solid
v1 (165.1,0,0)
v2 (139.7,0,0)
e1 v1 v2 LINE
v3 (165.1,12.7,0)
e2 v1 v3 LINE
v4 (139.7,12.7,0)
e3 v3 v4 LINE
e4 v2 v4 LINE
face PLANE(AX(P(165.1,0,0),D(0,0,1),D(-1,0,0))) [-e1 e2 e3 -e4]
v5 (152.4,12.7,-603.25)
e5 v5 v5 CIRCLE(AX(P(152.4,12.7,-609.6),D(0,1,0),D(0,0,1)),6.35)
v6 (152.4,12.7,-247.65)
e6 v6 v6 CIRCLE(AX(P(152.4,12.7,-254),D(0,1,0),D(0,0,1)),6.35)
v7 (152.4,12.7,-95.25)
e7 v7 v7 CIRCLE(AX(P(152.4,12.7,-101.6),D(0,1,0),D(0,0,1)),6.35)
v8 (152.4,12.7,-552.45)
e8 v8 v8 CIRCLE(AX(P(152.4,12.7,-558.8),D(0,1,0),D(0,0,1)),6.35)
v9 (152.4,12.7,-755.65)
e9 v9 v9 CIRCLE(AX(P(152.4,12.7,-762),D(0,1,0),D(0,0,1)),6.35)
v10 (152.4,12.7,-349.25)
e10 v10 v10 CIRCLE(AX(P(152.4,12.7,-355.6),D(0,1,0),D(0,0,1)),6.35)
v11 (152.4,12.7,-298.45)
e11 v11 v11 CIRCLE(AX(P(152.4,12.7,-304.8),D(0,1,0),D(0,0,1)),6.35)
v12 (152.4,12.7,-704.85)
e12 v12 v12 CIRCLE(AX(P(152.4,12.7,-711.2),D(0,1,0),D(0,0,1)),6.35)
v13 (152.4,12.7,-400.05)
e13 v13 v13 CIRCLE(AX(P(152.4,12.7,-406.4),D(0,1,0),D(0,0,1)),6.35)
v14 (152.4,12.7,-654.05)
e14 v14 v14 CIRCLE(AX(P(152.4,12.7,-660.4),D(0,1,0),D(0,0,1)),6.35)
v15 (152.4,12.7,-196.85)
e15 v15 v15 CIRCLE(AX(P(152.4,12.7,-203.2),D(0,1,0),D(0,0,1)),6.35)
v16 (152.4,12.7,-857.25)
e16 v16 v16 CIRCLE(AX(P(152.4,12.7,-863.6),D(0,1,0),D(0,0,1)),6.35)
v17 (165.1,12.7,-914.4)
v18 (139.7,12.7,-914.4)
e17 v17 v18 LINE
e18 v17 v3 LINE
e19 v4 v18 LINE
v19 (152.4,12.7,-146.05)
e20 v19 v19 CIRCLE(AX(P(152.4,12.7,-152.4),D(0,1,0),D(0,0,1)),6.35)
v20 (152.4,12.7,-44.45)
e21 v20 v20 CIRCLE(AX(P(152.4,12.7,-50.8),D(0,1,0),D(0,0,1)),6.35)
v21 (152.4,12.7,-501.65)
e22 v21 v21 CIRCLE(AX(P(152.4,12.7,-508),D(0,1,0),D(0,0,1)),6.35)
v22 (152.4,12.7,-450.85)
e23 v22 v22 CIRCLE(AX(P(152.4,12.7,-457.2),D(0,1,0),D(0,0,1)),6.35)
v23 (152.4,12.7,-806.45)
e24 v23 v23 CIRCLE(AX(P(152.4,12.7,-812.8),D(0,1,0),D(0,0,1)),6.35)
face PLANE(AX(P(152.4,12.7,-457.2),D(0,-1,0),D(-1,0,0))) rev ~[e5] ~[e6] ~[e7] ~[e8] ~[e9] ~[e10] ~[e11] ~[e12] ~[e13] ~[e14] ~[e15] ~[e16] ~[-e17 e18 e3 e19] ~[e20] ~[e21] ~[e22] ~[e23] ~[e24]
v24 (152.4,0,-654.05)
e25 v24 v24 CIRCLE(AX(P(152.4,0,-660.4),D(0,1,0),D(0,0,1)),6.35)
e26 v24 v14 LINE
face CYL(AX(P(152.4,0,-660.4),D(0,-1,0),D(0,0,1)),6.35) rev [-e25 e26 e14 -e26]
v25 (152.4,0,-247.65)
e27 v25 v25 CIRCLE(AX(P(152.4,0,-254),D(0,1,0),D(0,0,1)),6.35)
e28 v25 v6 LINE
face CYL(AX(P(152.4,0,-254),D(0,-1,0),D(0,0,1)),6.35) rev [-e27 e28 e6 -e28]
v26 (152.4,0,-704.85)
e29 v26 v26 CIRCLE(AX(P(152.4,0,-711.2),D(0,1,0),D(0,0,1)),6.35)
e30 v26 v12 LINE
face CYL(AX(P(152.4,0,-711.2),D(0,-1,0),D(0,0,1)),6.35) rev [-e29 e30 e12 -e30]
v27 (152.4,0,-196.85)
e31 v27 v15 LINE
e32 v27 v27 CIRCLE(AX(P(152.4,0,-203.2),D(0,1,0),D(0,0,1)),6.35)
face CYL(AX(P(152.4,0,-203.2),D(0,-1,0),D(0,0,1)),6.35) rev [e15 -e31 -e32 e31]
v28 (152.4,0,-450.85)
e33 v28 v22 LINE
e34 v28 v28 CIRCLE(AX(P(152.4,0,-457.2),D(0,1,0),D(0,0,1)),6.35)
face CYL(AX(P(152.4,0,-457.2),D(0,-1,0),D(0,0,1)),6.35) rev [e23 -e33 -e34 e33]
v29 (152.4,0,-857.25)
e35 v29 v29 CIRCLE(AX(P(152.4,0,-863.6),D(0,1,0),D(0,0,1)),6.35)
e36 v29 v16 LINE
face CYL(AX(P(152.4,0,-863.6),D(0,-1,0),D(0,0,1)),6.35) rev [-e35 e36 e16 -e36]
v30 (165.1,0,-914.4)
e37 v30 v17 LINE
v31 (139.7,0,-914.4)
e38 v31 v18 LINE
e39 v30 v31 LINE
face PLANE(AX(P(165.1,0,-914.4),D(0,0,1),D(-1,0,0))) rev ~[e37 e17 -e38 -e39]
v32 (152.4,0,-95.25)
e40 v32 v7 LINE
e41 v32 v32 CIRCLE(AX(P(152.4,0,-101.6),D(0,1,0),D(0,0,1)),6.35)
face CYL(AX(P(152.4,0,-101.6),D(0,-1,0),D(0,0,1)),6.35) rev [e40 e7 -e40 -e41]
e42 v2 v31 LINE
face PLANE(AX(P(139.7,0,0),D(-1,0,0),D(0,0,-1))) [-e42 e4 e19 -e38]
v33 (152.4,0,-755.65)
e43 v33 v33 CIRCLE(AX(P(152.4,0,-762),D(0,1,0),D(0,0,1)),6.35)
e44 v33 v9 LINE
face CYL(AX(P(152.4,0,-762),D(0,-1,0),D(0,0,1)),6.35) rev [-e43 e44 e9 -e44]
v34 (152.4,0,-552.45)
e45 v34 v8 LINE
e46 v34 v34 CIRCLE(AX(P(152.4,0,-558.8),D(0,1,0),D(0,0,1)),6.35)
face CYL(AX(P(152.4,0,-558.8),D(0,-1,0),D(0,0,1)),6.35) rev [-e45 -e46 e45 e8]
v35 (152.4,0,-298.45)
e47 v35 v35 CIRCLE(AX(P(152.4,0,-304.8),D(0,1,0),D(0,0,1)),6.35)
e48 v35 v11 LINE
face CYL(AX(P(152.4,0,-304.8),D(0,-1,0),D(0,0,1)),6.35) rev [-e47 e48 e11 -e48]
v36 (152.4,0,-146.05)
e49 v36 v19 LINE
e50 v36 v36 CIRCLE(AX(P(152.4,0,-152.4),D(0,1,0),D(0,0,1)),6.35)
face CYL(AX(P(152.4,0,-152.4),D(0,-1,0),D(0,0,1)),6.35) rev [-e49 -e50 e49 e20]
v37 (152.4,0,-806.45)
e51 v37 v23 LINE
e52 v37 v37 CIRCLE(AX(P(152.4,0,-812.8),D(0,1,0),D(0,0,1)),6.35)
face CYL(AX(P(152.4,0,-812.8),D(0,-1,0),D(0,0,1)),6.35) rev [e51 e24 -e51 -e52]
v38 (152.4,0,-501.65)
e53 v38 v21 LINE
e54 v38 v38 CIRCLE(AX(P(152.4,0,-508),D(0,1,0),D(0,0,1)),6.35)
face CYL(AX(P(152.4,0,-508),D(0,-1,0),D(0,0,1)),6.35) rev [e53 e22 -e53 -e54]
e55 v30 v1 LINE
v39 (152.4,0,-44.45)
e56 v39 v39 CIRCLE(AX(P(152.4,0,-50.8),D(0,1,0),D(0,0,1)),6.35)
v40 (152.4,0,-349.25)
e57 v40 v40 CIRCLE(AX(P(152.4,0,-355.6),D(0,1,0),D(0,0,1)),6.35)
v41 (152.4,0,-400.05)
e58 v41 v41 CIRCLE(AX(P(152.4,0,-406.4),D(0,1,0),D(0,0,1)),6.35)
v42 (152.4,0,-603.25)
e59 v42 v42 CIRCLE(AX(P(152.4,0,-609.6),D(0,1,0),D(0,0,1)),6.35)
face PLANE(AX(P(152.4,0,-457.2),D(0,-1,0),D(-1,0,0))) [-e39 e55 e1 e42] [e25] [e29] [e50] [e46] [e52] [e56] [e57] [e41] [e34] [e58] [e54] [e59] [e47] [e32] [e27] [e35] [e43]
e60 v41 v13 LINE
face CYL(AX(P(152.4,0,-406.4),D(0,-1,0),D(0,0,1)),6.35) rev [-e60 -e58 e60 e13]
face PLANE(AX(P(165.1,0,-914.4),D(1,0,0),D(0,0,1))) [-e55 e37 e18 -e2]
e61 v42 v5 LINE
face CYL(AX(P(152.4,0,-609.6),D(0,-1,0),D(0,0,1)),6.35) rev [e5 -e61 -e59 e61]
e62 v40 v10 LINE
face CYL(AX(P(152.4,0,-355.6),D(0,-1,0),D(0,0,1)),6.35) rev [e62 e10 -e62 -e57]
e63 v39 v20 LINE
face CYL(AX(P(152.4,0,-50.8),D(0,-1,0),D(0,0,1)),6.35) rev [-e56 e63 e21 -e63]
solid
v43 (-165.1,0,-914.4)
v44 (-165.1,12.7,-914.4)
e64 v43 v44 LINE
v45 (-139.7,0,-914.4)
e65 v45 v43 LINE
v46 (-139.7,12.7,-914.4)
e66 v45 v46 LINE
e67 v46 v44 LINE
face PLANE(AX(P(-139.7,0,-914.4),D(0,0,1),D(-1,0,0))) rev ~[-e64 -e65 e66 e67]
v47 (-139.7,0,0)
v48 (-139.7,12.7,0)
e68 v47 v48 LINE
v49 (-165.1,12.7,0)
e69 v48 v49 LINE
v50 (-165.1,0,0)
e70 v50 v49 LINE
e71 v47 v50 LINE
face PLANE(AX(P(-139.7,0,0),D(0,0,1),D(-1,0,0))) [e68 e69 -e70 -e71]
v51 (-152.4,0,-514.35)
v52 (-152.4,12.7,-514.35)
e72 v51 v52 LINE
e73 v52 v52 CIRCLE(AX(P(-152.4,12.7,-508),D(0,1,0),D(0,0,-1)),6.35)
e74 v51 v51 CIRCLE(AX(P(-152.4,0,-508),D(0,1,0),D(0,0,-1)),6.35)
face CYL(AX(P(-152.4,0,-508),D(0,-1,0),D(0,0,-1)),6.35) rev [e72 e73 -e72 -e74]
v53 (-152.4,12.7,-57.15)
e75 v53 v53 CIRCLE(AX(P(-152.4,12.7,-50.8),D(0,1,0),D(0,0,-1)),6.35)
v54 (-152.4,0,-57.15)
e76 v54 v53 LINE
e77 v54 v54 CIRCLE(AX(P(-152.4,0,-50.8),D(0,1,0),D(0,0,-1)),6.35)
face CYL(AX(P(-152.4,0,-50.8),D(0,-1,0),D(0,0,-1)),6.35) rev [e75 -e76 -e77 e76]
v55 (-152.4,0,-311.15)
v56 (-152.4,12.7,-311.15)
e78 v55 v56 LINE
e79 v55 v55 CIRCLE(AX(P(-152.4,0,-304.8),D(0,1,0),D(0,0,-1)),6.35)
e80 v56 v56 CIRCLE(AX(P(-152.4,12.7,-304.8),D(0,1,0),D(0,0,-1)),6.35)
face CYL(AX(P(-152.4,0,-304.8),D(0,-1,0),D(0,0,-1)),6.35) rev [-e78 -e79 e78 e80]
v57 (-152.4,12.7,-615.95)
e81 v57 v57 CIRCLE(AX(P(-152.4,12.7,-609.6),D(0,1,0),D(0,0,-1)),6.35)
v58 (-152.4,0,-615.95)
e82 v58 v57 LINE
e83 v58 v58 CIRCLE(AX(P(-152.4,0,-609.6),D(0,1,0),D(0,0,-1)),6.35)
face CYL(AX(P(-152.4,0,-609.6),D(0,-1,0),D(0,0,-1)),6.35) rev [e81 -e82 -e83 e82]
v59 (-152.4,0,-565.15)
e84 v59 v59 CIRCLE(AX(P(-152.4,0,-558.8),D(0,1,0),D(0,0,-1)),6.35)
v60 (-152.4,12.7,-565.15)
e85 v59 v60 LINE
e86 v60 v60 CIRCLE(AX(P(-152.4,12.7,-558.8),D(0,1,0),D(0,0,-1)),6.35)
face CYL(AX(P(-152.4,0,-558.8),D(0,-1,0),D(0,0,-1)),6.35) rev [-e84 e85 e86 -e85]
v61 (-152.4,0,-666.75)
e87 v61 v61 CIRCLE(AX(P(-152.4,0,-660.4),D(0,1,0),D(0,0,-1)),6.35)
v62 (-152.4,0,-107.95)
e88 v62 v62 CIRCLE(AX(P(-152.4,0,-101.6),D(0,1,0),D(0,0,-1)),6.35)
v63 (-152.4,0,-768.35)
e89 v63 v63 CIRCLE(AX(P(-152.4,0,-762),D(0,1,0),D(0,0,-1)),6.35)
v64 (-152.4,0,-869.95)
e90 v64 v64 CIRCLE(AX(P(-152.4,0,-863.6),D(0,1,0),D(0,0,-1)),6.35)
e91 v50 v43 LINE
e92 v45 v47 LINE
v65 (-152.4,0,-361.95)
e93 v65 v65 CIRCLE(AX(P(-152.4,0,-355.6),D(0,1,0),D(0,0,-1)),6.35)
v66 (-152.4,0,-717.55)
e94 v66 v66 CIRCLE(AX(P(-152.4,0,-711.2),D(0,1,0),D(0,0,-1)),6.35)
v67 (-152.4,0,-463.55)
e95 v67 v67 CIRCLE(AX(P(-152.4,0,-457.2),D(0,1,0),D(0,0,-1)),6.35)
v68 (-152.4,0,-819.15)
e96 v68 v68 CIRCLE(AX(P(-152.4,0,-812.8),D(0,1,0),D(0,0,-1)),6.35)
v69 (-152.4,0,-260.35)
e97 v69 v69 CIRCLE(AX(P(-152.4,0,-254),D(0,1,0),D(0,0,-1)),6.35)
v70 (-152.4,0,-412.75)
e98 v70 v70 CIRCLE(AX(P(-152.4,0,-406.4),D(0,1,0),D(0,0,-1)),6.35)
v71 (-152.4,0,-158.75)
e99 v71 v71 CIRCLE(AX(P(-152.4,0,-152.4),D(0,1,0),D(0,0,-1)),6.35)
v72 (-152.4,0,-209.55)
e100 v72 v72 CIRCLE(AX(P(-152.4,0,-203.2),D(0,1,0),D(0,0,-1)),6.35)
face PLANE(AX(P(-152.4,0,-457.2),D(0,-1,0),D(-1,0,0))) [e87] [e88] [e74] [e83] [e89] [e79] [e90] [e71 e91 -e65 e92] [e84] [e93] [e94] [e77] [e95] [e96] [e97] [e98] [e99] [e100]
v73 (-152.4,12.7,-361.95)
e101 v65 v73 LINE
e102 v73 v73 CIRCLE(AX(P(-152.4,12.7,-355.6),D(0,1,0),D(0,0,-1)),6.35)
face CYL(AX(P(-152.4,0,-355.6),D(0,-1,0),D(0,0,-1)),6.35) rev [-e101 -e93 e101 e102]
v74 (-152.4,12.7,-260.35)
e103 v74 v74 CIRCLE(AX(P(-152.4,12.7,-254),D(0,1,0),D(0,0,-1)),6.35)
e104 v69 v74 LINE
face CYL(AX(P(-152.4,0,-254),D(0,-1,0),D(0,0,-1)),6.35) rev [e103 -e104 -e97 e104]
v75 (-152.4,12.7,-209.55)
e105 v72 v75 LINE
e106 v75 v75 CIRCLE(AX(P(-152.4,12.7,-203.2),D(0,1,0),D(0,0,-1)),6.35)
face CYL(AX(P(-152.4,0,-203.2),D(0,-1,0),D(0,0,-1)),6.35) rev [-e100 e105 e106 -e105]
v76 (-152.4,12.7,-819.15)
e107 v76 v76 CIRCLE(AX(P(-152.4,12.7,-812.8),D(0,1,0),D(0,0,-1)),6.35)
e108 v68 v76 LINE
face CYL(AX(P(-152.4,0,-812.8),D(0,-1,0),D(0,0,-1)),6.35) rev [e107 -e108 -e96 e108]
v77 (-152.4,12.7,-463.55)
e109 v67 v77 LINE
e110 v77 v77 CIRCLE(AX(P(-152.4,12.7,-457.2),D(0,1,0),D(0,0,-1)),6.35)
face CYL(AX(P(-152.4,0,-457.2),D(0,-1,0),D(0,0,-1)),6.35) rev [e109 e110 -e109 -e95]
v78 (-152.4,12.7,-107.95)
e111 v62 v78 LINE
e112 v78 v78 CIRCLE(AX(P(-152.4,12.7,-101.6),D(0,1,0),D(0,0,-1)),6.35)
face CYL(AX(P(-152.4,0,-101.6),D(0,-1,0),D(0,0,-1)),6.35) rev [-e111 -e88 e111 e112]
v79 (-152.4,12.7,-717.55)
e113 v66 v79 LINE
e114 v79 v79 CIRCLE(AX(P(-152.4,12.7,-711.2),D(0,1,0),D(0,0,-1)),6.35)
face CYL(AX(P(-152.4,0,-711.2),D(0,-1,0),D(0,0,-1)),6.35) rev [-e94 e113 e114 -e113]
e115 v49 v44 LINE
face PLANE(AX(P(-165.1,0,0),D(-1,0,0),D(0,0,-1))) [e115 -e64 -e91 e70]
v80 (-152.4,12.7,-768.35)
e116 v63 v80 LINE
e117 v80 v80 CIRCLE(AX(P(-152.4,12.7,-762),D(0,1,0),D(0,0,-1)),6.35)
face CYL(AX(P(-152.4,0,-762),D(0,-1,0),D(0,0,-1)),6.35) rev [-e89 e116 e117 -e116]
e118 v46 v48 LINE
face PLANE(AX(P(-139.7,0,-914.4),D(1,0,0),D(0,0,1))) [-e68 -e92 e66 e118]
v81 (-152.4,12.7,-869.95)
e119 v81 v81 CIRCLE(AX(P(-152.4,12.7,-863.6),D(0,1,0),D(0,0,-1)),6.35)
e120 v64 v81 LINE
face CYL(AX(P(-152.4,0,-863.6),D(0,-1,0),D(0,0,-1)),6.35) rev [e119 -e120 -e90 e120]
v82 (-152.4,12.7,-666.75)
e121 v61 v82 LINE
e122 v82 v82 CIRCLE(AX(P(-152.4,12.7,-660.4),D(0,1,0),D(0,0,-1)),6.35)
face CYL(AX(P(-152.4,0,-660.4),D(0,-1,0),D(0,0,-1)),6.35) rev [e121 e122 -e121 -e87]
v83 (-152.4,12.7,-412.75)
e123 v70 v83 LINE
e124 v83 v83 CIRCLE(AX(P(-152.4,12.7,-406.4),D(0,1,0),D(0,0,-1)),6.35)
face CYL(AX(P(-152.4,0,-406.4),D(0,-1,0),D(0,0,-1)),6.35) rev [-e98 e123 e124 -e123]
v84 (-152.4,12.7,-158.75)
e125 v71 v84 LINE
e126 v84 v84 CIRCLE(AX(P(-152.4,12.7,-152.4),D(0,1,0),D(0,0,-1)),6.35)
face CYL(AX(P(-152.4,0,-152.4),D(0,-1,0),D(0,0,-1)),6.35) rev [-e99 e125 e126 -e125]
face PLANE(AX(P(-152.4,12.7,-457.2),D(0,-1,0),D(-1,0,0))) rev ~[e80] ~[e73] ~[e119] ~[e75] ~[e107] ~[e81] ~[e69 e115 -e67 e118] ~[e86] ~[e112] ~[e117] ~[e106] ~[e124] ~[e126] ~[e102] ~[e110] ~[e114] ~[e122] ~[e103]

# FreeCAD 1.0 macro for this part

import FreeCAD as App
import Part
import Sketcher
from FreeCAD import Vector
Q = App.Units.Quantity


def add_polygon(sketch, points):
    """Adds a closed chain of lines whose ends are joined by coincident constraints."""
    first, n = sketch.GeometryCount, len(points)
    for a, b in zip(points, points[1:] + points[:1]):
        sketch.addGeometry(Part.LineSegment(App.Vector(*a, 0), App.Vector(*b, 0)), False)
    for i in range(n):
        sketch.addConstraint(Sketcher.Constraint("Coincident", first + i, 2, first + (i + 1) % n, 1))

doc = App.newDocument("Part")
body = doc.addObject("PartDesign::Body", "Body")

sketch1 = body.newObject("Sketcher::SketchObject", "Sketch")
sketch1.AttachmentSupport = (doc.getObject("XZ_Plane"), [""])
sketch1.MapMode = "FlatFace"
add_polygon(sketch1, [(165, -914), (140, -914), (140, 0), (165, 0)])
sketch1.addGeometry(Part.Circle(Vector(152, -51, 0), Vector(0, 0, 1), 6), False)
sketch1.addGeometry(Part.Circle(Vector(152, -102, 0), Vector(0, 0, 1), 6), False)
sketch1.addGeometry(Part.Circle(Vector(152, -152, 0), Vector(0, 0, 1), 6), False)
sketch1.addGeometry(Part.Circle(Vector(152, -203, 0), Vector(0, 0, 1), 6), False)
sketch1.addGeometry(Part.Circle(Vector(152, -254, 0), Vector(0, 0, 1), 6), False)
sketch1.addGeometry(Part.Circle(Vector(152, -305, 0), Vector(0, 0, 1), 6), False)
sketch1.addGeometry(Part.Circle(Vector(152, -356, 0), Vector(0, 0, 1), 6), False)
sketch1.addGeometry(Part.Circle(Vector(152, -406, 0), Vector(0, 0, 1), 6), False)
sketch1.addGeometry(Part.Circle(Vector(152, -457, 0), Vector(0, 0, 1), 6), False)
sketch1.addGeometry(Part.Circle(Vector(152, -508, 0), Vector(0, 0, 1), 6), False)
sketch1.addGeometry(Part.Circle(Vector(152, -559, 0), Vector(0, 0, 1), 6), False)
sketch1.addGeometry(Part.Circle(Vector(152, -610, 0), Vector(0, 0, 1), 6), False)
sketch1.addGeometry(Part.Circle(Vector(152, -660, 0), Vector(0, 0, 1), 6), False)
sketch1.addGeometry(Part.Circle(Vector(152, -711, 0), Vector(0, 0, 1), 6), False)
sketch1.addGeometry(Part.Circle(Vector(152, -762, 0), Vector(0, 0, 1), 6), False)
sketch1.addGeometry(Part.Circle(Vector(152, -813, 0), Vector(0, 0, 1), 6), False)
sketch1.addGeometry(Part.Circle(Vector(152, -864, 0), Vector(0, 0, 1), 6), False)
sketch1.addConstraint([
    Sketcher.Constraint("Horizontal", 0),
    Sketcher.Constraint("Vertical", 1),
    Sketcher.Constraint("Horizontal", 2),
    Sketcher.Constraint("Vertical", 3),
    Sketcher.Constraint("Equal", 4, 5),
    Sketcher.Constraint("Equal", 5, 6),
    Sketcher.Constraint("Equal", 6, 7),
    Sketcher.Constraint("Equal", 7, 8),
    Sketcher.Constraint("Equal", 8, 9),
    Sketcher.Constraint("Equal", 9, 10),
    Sketcher.Constraint("Equal", 10, 11),
    Sketcher.Constraint("Equal", 11, 12),
    Sketcher.Constraint("Equal", 12, 13),
    Sketcher.Constraint("Equal", 13, 14),
    Sketcher.Constraint("Equal", 14, 15),
    Sketcher.Constraint("Equal", 15, 16),
    Sketcher.Constraint("Equal", 16, 17),
    Sketcher.Constraint("Equal", 17, 18),
    Sketcher.Constraint("Equal", 18, 19),
    Sketcher.Constraint("Equal", 19, 20),
    Sketcher.Constraint("PointOnObject", 1, 2, -1),
    Sketcher.Constraint("Vertical", 4, 3, 5, 3),
    Sketcher.Constraint("Vertical", 5, 3, 6, 3),
    Sketcher.Constraint("Vertical", 6, 3, 7, 3),
    Sketcher.Constraint("Vertical", 7, 3, 8, 3),
    Sketcher.Constraint("Vertical", 8, 3, 9, 3),
    Sketcher.Constraint("Vertical", 9, 3, 10, 3),
    Sketcher.Constraint("Vertical", 10, 3, 11, 3),
    Sketcher.Constraint("Vertical", 11, 3, 12, 3),
    Sketcher.Constraint("Vertical", 12, 3, 13, 3),
    Sketcher.Constraint("Vertical", 13, 3, 14, 3),
    Sketcher.Constraint("Vertical", 14, 3, 15, 3),
    Sketcher.Constraint("Vertical", 15, 3, 16, 3),
    Sketcher.Constraint("Vertical", 16, 3, 17, 3),
    Sketcher.Constraint("Vertical", 17, 3, 18, 3),
    Sketcher.Constraint("Vertical", 18, 3, 19, 3),
    Sketcher.Constraint("Vertical", 19, 3, 20, 3),
    Sketcher.Constraint("Diameter", 4, Q("0.5 in")),
    Sketcher.Constraint("DistanceX", 0, 2, 0, 1, Q("1 in")),
    Sketcher.Constraint("DistanceY", 1, 1, 1, 2, Q("36 in")),
    Sketcher.Constraint("DistanceX", -1, 1, 4, 3, Q("6 in")),
    Sketcher.Constraint("DistanceY", 4, 3, -1, 1, Q("2 in")),
    Sketcher.Constraint("DistanceY", 5, 3, -1, 1, Q("4 in")),
    Sketcher.Constraint("DistanceY", 6, 3, -1, 1, Q("6 in")),
    Sketcher.Constraint("DistanceY", 7, 3, -1, 1, Q("8 in")),
    Sketcher.Constraint("DistanceY", 8, 3, -1, 1, Q("10 in")),
    Sketcher.Constraint("DistanceY", 9, 3, -1, 1, Q("12 in")),
    Sketcher.Constraint("DistanceY", 10, 3, -1, 1, Q("14 in")),
    Sketcher.Constraint("DistanceY", 11, 3, -1, 1, Q("16 in")),
    Sketcher.Constraint("DistanceY", 12, 3, -1, 1, Q("18 in")),
    Sketcher.Constraint("DistanceY", 13, 3, -1, 1, Q("20 in")),
    Sketcher.Constraint("DistanceY", 14, 3, -1, 1, Q("22 in")),
    Sketcher.Constraint("DistanceY", 15, 3, -1, 1, Q("24 in")),
    Sketcher.Constraint("DistanceY", 16, 3, -1, 1, Q("26 in")),
    Sketcher.Constraint("DistanceY", 17, 3, -1, 1, Q("28 in")),
    Sketcher.Constraint("DistanceY", 18, 3, -1, 1, Q("30 in")),
    Sketcher.Constraint("DistanceY", 19, 3, -1, 1, Q("32 in")),
    Sketcher.Constraint("DistanceY", 20, 3, -1, 1, Q("34 in")),
    Sketcher.Constraint("DistanceX", -1, 1, 0, 2, Q("5.5 in")),
])
pad1 = body.newObject("PartDesign::Pad", "Pad")
pad1.Profile = sketch1
pad1.Length = Q("0.5 in")
pad1.Reversed = True
body2 = doc.addObject("PartDesign::Body", "Body001")

sketch2 = body2.newObject("Sketcher::SketchObject", "Sketch001")
sketch2.AttachmentSupport = (doc.getObject("XZ_Plane001"), [""])
sketch2.MapMode = "FlatFace"
add_polygon(sketch2, [(-165, -914), (-165, 0), (-140, 0), (-140, -914)])
sketch2.addGeometry(Part.Circle(Vector(-152, -51, 0), Vector(0, 0, 1), 6), False)
sketch2.addGeometry(Part.Circle(Vector(-152, -102, 0), Vector(0, 0, 1), 6), False)
sketch2.addGeometry(Part.Circle(Vector(-152, -152, 0), Vector(0, 0, 1), 6), False)
sketch2.addGeometry(Part.Circle(Vector(-152, -203, 0), Vector(0, 0, 1), 6), False)
sketch2.addGeometry(Part.Circle(Vector(-152, -254, 0), Vector(0, 0, 1), 6), False)
sketch2.addGeometry(Part.Circle(Vector(-152, -305, 0), Vector(0, 0, 1), 6), False)
sketch2.addGeometry(Part.Circle(Vector(-152, -356, 0), Vector(0, 0, 1), 6), False)
sketch2.addGeometry(Part.Circle(Vector(-152, -406, 0), Vector(0, 0, 1), 6), False)
sketch2.addGeometry(Part.Circle(Vector(-152, -457, 0), Vector(0, 0, 1), 6), False)
sketch2.addGeometry(Part.Circle(Vector(-152, -508, 0), Vector(0, 0, 1), 6), False)
sketch2.addGeometry(Part.Circle(Vector(-152, -559, 0), Vector(0, 0, 1), 6), False)
sketch2.addGeometry(Part.Circle(Vector(-152, -610, 0), Vector(0, 0, 1), 6), False)
sketch2.addGeometry(Part.Circle(Vector(-152, -660, 0), Vector(0, 0, 1), 6), False)
sketch2.addGeometry(Part.Circle(Vector(-152, -711, 0), Vector(0, 0, 1), 6), False)
sketch2.addGeometry(Part.Circle(Vector(-152, -762, 0), Vector(0, 0, 1), 6), False)
sketch2.addGeometry(Part.Circle(Vector(-152, -813, 0), Vector(0, 0, 1), 6), False)
sketch2.addGeometry(Part.Circle(Vector(-152, -864, 0), Vector(0, 0, 1), 6), False)
sketch2.addConstraint([
    Sketcher.Constraint("Vertical", 0),
    Sketcher.Constraint("Horizontal", 1),
    Sketcher.Constraint("Vertical", 2),
    Sketcher.Constraint("Horizontal", 3),
    Sketcher.Constraint("Equal", 4, 5),
    Sketcher.Constraint("Equal", 5, 6),
    Sketcher.Constraint("Equal", 6, 7),
    Sketcher.Constraint("Equal", 7, 8),
    Sketcher.Constraint("Equal", 8, 9),
    Sketcher.Constraint("Equal", 9, 10),
    Sketcher.Constraint("Equal", 10, 11),
    Sketcher.Constraint("Equal", 11, 12),
    Sketcher.Constraint("Equal", 12, 13),
    Sketcher.Constraint("Equal", 13, 14),
    Sketcher.Constraint("Equal", 14, 15),
    Sketcher.Constraint("Equal", 15, 16),
    Sketcher.Constraint("Equal", 16, 17),
    Sketcher.Constraint("Equal", 17, 18),
    Sketcher.Constraint("Equal", 18, 19),
    Sketcher.Constraint("Equal", 19, 20),
    Sketcher.Constraint("PointOnObject", 0, 2, -1),
    Sketcher.Constraint("Vertical", 4, 3, 5, 3),
    Sketcher.Constraint("Vertical", 5, 3, 6, 3),
    Sketcher.Constraint("Vertical", 6, 3, 7, 3),
    Sketcher.Constraint("Vertical", 7, 3, 8, 3),
    Sketcher.Constraint("Vertical", 8, 3, 9, 3),
    Sketcher.Constraint("Vertical", 9, 3, 10, 3),
    Sketcher.Constraint("Vertical", 10, 3, 11, 3),
    Sketcher.Constraint("Vertical", 11, 3, 12, 3),
    Sketcher.Constraint("Vertical", 12, 3, 13, 3),
    Sketcher.Constraint("Vertical", 13, 3, 14, 3),
    Sketcher.Constraint("Vertical", 14, 3, 15, 3),
    Sketcher.Constraint("Vertical", 15, 3, 16, 3),
    Sketcher.Constraint("Vertical", 16, 3, 17, 3),
    Sketcher.Constraint("Vertical", 17, 3, 18, 3),
    Sketcher.Constraint("Vertical", 18, 3, 19, 3),
    Sketcher.Constraint("Vertical", 19, 3, 20, 3),
    Sketcher.Constraint("Diameter", 4, Q("0.5 in")),
    Sketcher.Constraint("DistanceX", 1, 1, 1, 2, Q("1 in")),
    Sketcher.Constraint("DistanceY", 0, 1, 0, 2, Q("36 in")),
    Sketcher.Constraint("DistanceX", 4, 3, -1, 1, Q("6 in")),
    Sketcher.Constraint("DistanceY", 4, 3, -1, 1, Q("2 in")),
    Sketcher.Constraint("DistanceY", 5, 3, -1, 1, Q("4 in")),
    Sketcher.Constraint("DistanceY", 6, 3, -1, 1, Q("6 in")),
    Sketcher.Constraint("DistanceY", 7, 3, -1, 1, Q("8 in")),
    Sketcher.Constraint("DistanceY", 8, 3, -1, 1, Q("10 in")),
    Sketcher.Constraint("DistanceY", 9, 3, -1, 1, Q("12 in")),
    Sketcher.Constraint("DistanceY", 10, 3, -1, 1, Q("14 in")),
    Sketcher.Constraint("DistanceY", 11, 3, -1, 1, Q("16 in")),
    Sketcher.Constraint("DistanceY", 12, 3, -1, 1, Q("18 in")),
    Sketcher.Constraint("DistanceY", 13, 3, -1, 1, Q("20 in")),
    Sketcher.Constraint("DistanceY", 14, 3, -1, 1, Q("22 in")),
    Sketcher.Constraint("DistanceY", 15, 3, -1, 1, Q("24 in")),
    Sketcher.Constraint("DistanceY", 16, 3, -1, 1, Q("26 in")),
    Sketcher.Constraint("DistanceY", 17, 3, -1, 1, Q("28 in")),
    Sketcher.Constraint("DistanceY", 18, 3, -1, 1, Q("30 in")),
    Sketcher.Constraint("DistanceY", 19, 3, -1, 1, Q("32 in")),
    Sketcher.Constraint("DistanceY", 20, 3, -1, 1, Q("34 in")),
    Sketcher.Constraint("DistanceX", 0, 2, -1, 1, Q("6.5 in")),
])
pad2 = body2.newObject("PartDesign::Pad", "Pad001")
pad2.Profile = sketch2
pad2.Length = Q("0.5 in")
pad2.Reversed = True

doc.recompute()
